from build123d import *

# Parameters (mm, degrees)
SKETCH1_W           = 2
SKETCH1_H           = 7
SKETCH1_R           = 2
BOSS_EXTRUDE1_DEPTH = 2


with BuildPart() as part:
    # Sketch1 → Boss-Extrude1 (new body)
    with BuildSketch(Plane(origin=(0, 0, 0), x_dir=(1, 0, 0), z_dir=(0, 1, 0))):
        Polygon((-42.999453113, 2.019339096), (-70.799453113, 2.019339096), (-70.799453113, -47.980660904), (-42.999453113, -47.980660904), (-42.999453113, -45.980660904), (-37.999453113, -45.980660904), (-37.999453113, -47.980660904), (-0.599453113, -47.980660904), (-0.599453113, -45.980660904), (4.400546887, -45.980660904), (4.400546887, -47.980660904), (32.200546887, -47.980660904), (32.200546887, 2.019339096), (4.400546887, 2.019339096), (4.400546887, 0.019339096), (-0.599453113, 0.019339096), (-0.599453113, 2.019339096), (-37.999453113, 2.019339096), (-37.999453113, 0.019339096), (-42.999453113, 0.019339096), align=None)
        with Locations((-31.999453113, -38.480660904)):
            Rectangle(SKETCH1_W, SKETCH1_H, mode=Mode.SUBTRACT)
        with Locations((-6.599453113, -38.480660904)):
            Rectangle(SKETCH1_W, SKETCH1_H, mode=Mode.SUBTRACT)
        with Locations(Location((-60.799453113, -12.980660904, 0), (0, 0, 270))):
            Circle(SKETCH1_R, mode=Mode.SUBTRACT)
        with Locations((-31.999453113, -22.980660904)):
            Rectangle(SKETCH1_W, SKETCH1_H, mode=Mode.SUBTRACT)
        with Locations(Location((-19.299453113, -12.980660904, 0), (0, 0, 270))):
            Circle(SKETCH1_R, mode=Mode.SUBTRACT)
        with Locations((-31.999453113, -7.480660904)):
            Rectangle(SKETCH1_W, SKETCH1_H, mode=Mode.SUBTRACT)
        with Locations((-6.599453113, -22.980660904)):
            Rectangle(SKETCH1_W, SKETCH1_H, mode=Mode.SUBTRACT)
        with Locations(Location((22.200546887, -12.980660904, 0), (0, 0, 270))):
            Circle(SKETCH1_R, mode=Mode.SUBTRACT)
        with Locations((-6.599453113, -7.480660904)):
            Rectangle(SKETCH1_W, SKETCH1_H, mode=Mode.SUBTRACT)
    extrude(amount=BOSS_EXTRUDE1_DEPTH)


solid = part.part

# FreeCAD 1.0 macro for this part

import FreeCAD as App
import Part
import Sketcher

V = App.Vector

doc = App.newDocument("Part")
body = doc.addObject("PartDesign::Body", "Body")

sketch1 = doc.addObject("Sketcher::SketchObject", "Sketch")
body.addObject(sketch1)
sketch1.AttachmentSupport = (doc.XZ_Plane, [""])
sketch1.MapMode = "FlatFace"
sketch1.addGeometry([
    Part.LineSegment(V(-43, -2, 0), V(-70.8, -2, 0)),
    Part.LineSegment(V(-70.8, -2, 0), V(-70.8, 48, 0)),
    Part.LineSegment(V(-70.8, 48, 0), V(-43, 48, 0)),
    Part.LineSegment(V(-43, 48, 0), V(-43, 46, 0)),
    Part.LineSegment(V(-43, 46, 0), V(-38, 46, 0)),
    Part.LineSegment(V(-38, 46, 0), V(-38, 48, 0)),
    Part.LineSegment(V(-38, 48, 0), V(-0.6, 48, 0)),
    Part.LineSegment(V(-0.6, 48, 0), V(-0.6, 46, 0)),
    Part.LineSegment(V(-0.6, 46, 0), V(4.4, 46, 0)),
    Part.LineSegment(V(4.4, 46, 0), V(4.4, 48, 0)),
    Part.LineSegment(V(4.4, 48, 0), V(32.2, 48, 0)),
    Part.LineSegment(V(32.2, 48, 0), V(32.2, -2, 0)),
    Part.LineSegment(V(32.2, -2, 0), V(4.4, -2, 0)),
    Part.LineSegment(V(4.4, -2, 0), V(4.4, 0, 0)),
    Part.LineSegment(V(4.4, 0, 0), V(-0.6, 0, 0)),
    Part.LineSegment(V(-0.6, 0, 0), V(-0.6, -2, 0)),
    Part.LineSegment(V(-0.6, -2, 0), V(-38, -2, 0)),
    Part.LineSegment(V(-38, -2, 0), V(-38, 0, 0)),
    Part.LineSegment(V(-38, 0, 0), V(-43, 0, 0)),
    Part.LineSegment(V(-43, 0, 0), V(-43, -2, 0)),
    Part.LineSegment(V(-31, 42, 0), V(-33, 42, 0)),
    Part.LineSegment(V(-33, 42, 0), V(-33, 35, 0)),
    Part.LineSegment(V(-33, 35, 0), V(-31, 35, 0)),
    Part.LineSegment(V(-31, 35, 0), V(-31, 42, 0)),
    Part.LineSegment(V(-31, 26.5, 0), V(-33, 26.5, 0)),
    Part.LineSegment(V(-33, 26.5, 0), V(-33, 19.5, 0)),
    Part.LineSegment(V(-33, 19.5, 0), V(-31, 19.5, 0)),
    Part.LineSegment(V(-31, 19.5, 0), V(-31, 26.5, 0)),
    Part.LineSegment(V(-5.6, 42, 0), V(-7.6, 42, 0)),
    Part.LineSegment(V(-7.6, 42, 0), V(-7.6, 35, 0)),
    Part.LineSegment(V(-7.6, 35, 0), V(-5.6, 35, 0)),
    Part.LineSegment(V(-5.6, 35, 0), V(-5.6, 42, 0)),
    Part.LineSegment(V(-5.6, 26.5, 0), V(-7.6, 26.5, 0)),
    Part.LineSegment(V(-7.6, 26.5, 0), V(-7.6, 19.5, 0)),
    Part.LineSegment(V(-7.6, 19.5, 0), V(-5.6, 19.5, 0)),
    Part.LineSegment(V(-5.6, 19.5, 0), V(-5.6, 26.5, 0)),
    Part.Circle(V(-60.8, 13, 0), V(0, 0, 1), 2),
    Part.LineSegment(V(-31, 11, 0), V(-33, 11, 0)),
    Part.LineSegment(V(-33, 11, 0), V(-33, 4, 0)),
    Part.LineSegment(V(-33, 4, 0), V(-31, 4, 0)),
    Part.LineSegment(V(-31, 4, 0), V(-31, 11, 0)),
    Part.Circle(V(-19.3, 13, 0), V(0, 0, 1), 2),
    Part.LineSegment(V(-5.6, 11, 0), V(-7.6, 11, 0)),
    Part.LineSegment(V(-7.6, 11, 0), V(-7.6, 4, 0)),
    Part.LineSegment(V(-7.6, 4, 0), V(-5.6, 4, 0)),
    Part.LineSegment(V(-5.6, 4, 0), V(-5.6, 11, 0)),
    Part.Circle(V(22.2, 13, 0), V(0, 0, 1), 2),
], False)
sketch1.addConstraint([
    Sketcher.Constraint("Coincident", 0, 2, 1, 1),
    Sketcher.Constraint("Coincident", 1, 2, 2, 1),
    Sketcher.Constraint("Coincident", 2, 2, 3, 1),
    Sketcher.Constraint("Coincident", 3, 2, 4, 1),
    Sketcher.Constraint("Coincident", 4, 2, 5, 1),
    Sketcher.Constraint("Coincident", 5, 2, 6, 1),
    Sketcher.Constraint("Coincident", 6, 2, 7, 1),
    Sketcher.Constraint("Coincident", 7, 2, 8, 1),
    Sketcher.Constraint("Coincident", 8, 2, 9, 1),
    Sketcher.Constraint("Coincident", 9, 2, 10, 1),
    Sketcher.Constraint("Coincident", 10, 2, 11, 1),
    Sketcher.Constraint("Coincident", 11, 2, 12, 1),
    Sketcher.Constraint("Coincident", 12, 2, 13, 1),
    Sketcher.Constraint("Coincident", 13, 2, 14, 1),
    Sketcher.Constraint("Coincident", 14, 2, 15, 1),
    Sketcher.Constraint("Coincident", 15, 2, 16, 1),
    Sketcher.Constraint("Coincident", 16, 2, 17, 1),
    Sketcher.Constraint("Coincident", 17, 2, 18, 1),
    Sketcher.Constraint("Coincident", 18, 2, 19, 1),
    Sketcher.Constraint("Coincident", 19, 2, 0, 1),
    Sketcher.Constraint("Coincident", 20, 2, 21, 1),
    Sketcher.Constraint("Coincident", 21, 2, 22, 1),
    Sketcher.Constraint("Coincident", 22, 2, 23, 1),
    Sketcher.Constraint("Coincident", 23, 2, 20, 1),
    Sketcher.Constraint("Coincident", 24, 2, 25, 1),
    Sketcher.Constraint("Coincident", 25, 2, 26, 1),
    Sketcher.Constraint("Coincident", 26, 2, 27, 1),
    Sketcher.Constraint("Coincident", 27, 2, 24, 1),
    Sketcher.Constraint("Coincident", 28, 2, 29, 1),
    Sketcher.Constraint("Coincident", 29, 2, 30, 1),
    Sketcher.Constraint("Coincident", 30, 2, 31, 1),
    Sketcher.Constraint("Coincident", 31, 2, 28, 1),
    Sketcher.Constraint("Coincident", 32, 2, 33, 1),
    Sketcher.Constraint("Coincident", 33, 2, 34, 1),
    Sketcher.Constraint("Coincident", 34, 2, 35, 1),
    Sketcher.Constraint("Coincident", 35, 2, 32, 1),
    Sketcher.Constraint("Coincident", 37, 2, 38, 1),
    Sketcher.Constraint("Coincident", 38, 2, 39, 1),
    Sketcher.Constraint("Coincident", 39, 2, 40, 1),
    Sketcher.Constraint("Coincident", 40, 2, 37, 1),
    Sketcher.Constraint("Coincident", 42, 2, 43, 1),
    Sketcher.Constraint("Coincident", 43, 2, 44, 1),
    Sketcher.Constraint("Coincident", 44, 2, 45, 1),
    Sketcher.Constraint("Coincident", 45, 2, 42, 1),
    Sketcher.Constraint("Horizontal", 0),
    Sketcher.Constraint("Vertical", 1),
    Sketcher.Constraint("Horizontal", 2),
    Sketcher.Constraint("Vertical", 3),
    Sketcher.Constraint("Horizontal", 4),
    Sketcher.Constraint("Vertical", 5),
    Sketcher.Constraint("Horizontal", 6),
    Sketcher.Constraint("Vertical", 7),
    Sketcher.Constraint("Horizontal", 8),
    Sketcher.Constraint("Vertical", 9),
    Sketcher.Constraint("Horizontal", 10),
    Sketcher.Constraint("Vertical", 11),
    Sketcher.Constraint("Horizontal", 12),
    Sketcher.Constraint("Vertical", 13),
    Sketcher.Constraint("Horizontal", 14),
    Sketcher.Constraint("Vertical", 15),
    Sketcher.Constraint("Horizontal", 16),
    Sketcher.Constraint("Vertical", 17),
    Sketcher.Constraint("Horizontal", 18),
    Sketcher.Constraint("Vertical", 19),
    Sketcher.Constraint("Horizontal", 20),
    Sketcher.Constraint("Vertical", 21),
    Sketcher.Constraint("Horizontal", 22),
    Sketcher.Constraint("Vertical", 23),
    Sketcher.Constraint("Horizontal", 24),
    Sketcher.Constraint("Vertical", 25),
    Sketcher.Constraint("Horizontal", 26),
    Sketcher.Constraint("Vertical", 27),
    Sketcher.Constraint("Horizontal", 28),
    Sketcher.Constraint("Vertical", 29),
    Sketcher.Constraint("Horizontal", 30),
    Sketcher.Constraint("Vertical", 31),
    Sketcher.Constraint("Horizontal", 32),
    Sketcher.Constraint("Vertical", 33),
    Sketcher.Constraint("Horizontal", 34),
    Sketcher.Constraint("Vertical", 35),
    Sketcher.Constraint("Horizontal", 37),
    Sketcher.Constraint("Vertical", 38),
    Sketcher.Constraint("Horizontal", 39),
    Sketcher.Constraint("Vertical", 40),
    Sketcher.Constraint("Horizontal", 42),
    Sketcher.Constraint("Vertical", 43),
    Sketcher.Constraint("Horizontal", 44),
    Sketcher.Constraint("Vertical", 45),
    Sketcher.Constraint("Equal", 36, 41),
    Sketcher.Constraint("Equal", 41, 46),
    Sketcher.Constraint("Horizontal", 36, 3, 41, 3),
    Sketcher.Constraint("Horizontal", 41, 3, 46, 3),
    Sketcher.Constraint("Horizontal", 2, 2, 5, 2),
    Sketcher.Constraint("Horizontal", 4, 2, 7, 2),
    Sketcher.Constraint("Horizontal", 6, 2, 9, 2),
    Sketcher.Constraint("Horizontal", 0, 2, 11, 2),
    Sketcher.Constraint("Horizontal", 12, 2, 15, 2),
    Sketcher.Constraint("Horizontal", 14, 2, 17, 2),
    Sketcher.Constraint("Horizontal", 23, 2, 28, 2),
    Sketcher.Constraint("Horizontal", 22, 2, 29, 2),
    Sketcher.Constraint("Horizontal", 27, 2, 32, 2),
    Sketcher.Constraint("Horizontal", 26, 2, 33, 2),
    Sketcher.Constraint("Horizontal", 40, 2, 42, 2),
    Sketcher.Constraint("Horizontal", 39, 2, 43, 2),
    Sketcher.Constraint("Vertical", 9, 2, 12, 2),
    Sketcher.Constraint("Vertical", 7, 2, 14, 2),
    Sketcher.Constraint("Vertical", 5, 2, 16, 2),
    Sketcher.Constraint("Vertical", 3, 2, 18, 2),
    Sketcher.Constraint("Vertical", 21, 2, 24, 2),
    Sketcher.Constraint("Vertical", 23, 2, 26, 2),
    Sketcher.Constraint("Vertical", 29, 2, 32, 2),
    Sketcher.Constraint("Vertical", 31, 2, 34, 2),
    Sketcher.Constraint("Vertical", 25, 2, 37, 2),
    Sketcher.Constraint("Vertical", 27, 2, 39, 2),
    Sketcher.Constraint("Vertical", 33, 2, 42, 2),
    Sketcher.Constraint("Vertical", 35, 2, 44, 2),
    Sketcher.Constraint("Equal", 4, 8),
    Sketcher.Constraint("Equal", 2, 10),
    Sketcher.Constraint("Equal", 26, 28),
    Sketcher.Constraint("Equal", 44, 3),
    Sketcher.Constraint("Equal", 9, 13),
    Sketcher.Constraint("Equal", 23, 25),
    Sketcher.Constraint("Equal", 35, 38),
    Sketcher.Constraint("Diameter", 36, 4.0),
    Sketcher.Constraint("DistanceX", 4, 1, 4, 2, 5.0),
    Sketcher.Constraint("DistanceX", 20, 2, 20, 1, 2.0),
    Sketcher.Constraint("DistanceY", 1, 1, 1, 2, 50.0),
    Sketcher.Constraint("DistanceY", 21, 2, 21, 1, 7.0),
    Sketcher.Constraint("DistanceX", 0, 2, 0, 1, 27.8),
    Sketcher.Constraint("DistanceX", 6, 1, 6, 2, 37.4),
    Sketcher.Constraint("DistanceX", 36, 3, 46, 3, 83.0),
    Sketcher.Constraint("DistanceX", 0, 2, 36, 3, 10.0),
    Sketcher.Constraint("DistanceY", 0, 2, 36, 3, 15.0),
    Sketcher.Constraint("DistanceX", 4, 2, 20, 2, 5.0),
    Sketcher.Constraint("DistanceY", 20, 2, 4, 2, 4.0),
    Sketcher.Constraint("DistanceX", 28, 2, 7, 2, 7.0),
    Sketcher.Constraint("DistanceY", 17, 2, 37, 2, 11.0),
    Sketcher.Constraint("DistanceX", 36, 3, 41, 3, 41.5),
    Sketcher.Constraint("DistanceY", 24, 2, 21, 2, 8.5),
    Sketcher.Constraint("DistanceY", -1, 1, 36, 3, 12.980661),
    Sketcher.Constraint("DistanceX", 36, 3, -1, 1, 60.799453),
])
pad1 = doc.addObject("PartDesign::Pad", "Pad")
body.addObject(pad1)
pad1.Profile = sketch1
pad1.Length = 2
pad1.Reversed = True

doc.recompute()
